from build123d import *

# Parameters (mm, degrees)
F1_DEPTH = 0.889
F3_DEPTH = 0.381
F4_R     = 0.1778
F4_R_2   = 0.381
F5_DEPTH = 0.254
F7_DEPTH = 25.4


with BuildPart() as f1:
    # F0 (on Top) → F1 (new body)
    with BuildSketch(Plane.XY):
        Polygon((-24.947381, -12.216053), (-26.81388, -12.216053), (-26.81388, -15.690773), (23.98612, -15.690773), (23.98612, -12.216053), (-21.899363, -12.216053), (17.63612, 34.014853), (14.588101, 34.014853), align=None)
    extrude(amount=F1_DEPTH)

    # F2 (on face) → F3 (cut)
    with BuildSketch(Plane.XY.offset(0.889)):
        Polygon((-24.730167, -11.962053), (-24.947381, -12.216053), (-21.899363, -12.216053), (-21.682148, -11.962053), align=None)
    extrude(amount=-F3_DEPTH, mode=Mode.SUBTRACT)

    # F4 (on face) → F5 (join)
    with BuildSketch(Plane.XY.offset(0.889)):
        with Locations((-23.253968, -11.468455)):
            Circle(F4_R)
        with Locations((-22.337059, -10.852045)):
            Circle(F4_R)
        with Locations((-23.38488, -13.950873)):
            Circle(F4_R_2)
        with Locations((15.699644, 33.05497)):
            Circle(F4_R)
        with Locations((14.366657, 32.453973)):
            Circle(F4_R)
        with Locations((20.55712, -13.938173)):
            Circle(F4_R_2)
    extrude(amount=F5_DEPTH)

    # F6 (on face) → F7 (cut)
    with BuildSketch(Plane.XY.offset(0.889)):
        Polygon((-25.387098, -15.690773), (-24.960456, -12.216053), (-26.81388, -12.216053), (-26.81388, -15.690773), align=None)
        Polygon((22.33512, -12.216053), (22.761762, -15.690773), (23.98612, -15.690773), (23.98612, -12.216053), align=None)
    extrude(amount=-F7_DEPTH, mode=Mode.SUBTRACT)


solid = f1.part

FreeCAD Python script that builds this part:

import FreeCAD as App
import Part
import Sketcher

V = App.Vector
Q = App.Units.Quantity


def add_polygon(sketch, points):
    """Adds a closed chain of lines whose ends are joined by coincident constraints."""
    first, n = sketch.GeometryCount, len(points)
    for a, b in zip(points, points[1:] + points[:1]):
        sketch.addGeometry(Part.LineSegment(App.Vector(*a, 0), App.Vector(*b, 0)), False)
    for i in range(n):
        sketch.addConstraint(Sketcher.Constraint("Coincident", first + i, 2, first + (i + 1) % n, 1))

doc = App.newDocument("Part")
body = doc.addObject("PartDesign::Body", "Body")

# Sketch on XY plane
sketch1 = body.newObject("Sketcher::SketchObject", "Sketch")
sketch1.AttachmentSupport = (doc.getObject("XY_Plane"), [""])
sketch1.MapMode = "FlatFace"
add_polygon(sketch1, [(-24.947381, -12.216053), (-26.81388, -12.216053), (-26.81388, -15.690773), (23.98612, -15.690773), (23.98612, -12.216053), (-21.899363, -12.216053), (17.63612, 34.014853), (14.588101, 34.014853)])  # lines 0-7
sketch1.addConstraint([
    Sketcher.Constraint("Horizontal", 0),
    Sketcher.Constraint("Vertical", 1),
    Sketcher.Constraint("Horizontal", 2),
    Sketcher.Constraint("Vertical", 3),
    Sketcher.Constraint("Horizontal", 4),
    Sketcher.Constraint("Horizontal", 6),
    Sketcher.Constraint("Parallel", 5, 7),
    Sketcher.Constraint("Horizontal", 0, 2, 3, 2),
    Sketcher.Constraint("DistanceX", 2, 1, 2, 2, Q("2 in")),
    Sketcher.Constraint("DistanceX", 5, 2, 3, 2, Q("0.25 in")),
    Sketcher.Constraint("DistanceY", 1, 2, 1, 1, Q("0.1368 in")),
    Sketcher.Constraint("DistanceX", 0, 2, 0, 1, Q("1.866499 mm")),
    Sketcher.Constraint("DistanceX", 6, 2, 6, 1, Q("3.048019 mm")),
    Sketcher.Constraint("DistanceX", -1, 1, 6, 2, Q("14.588101 mm")),
    Sketcher.Constraint("Distance", 5, Q("60.830511 mm")),
    Sketcher.Constraint("DistanceY", 0, 2, -1, 1, Q("12.216053 mm")),
])
pad1 = body.newObject("PartDesign::Pad", "Pad")
pad1.Profile = sketch1
pad1.Length = Q("0.035 in")

# Sketch on XY plane
sketch2 = body.newObject("Sketcher::SketchObject", "Sketch001")
sketch2.AttachmentSupport = (doc.getObject("XY_Plane"), [""])
sketch2.MapMode = "FlatFace"
sketch2.AttachmentOffset = App.Placement(V(0, 0, 0.035 * 25.4), App.Rotation())
add_polygon(sketch2, [(-24.730167, -11.962053), (-24.947381, -12.216053), (-21.899363, -12.216053), (-21.682148, -11.962053)])  # lines 0-3
sketch2.addConstraint([
    Sketcher.Constraint("Horizontal", 1),
    Sketcher.Constraint("Horizontal", 3),
    Sketcher.Constraint("Equal", 1, 3),
    Sketcher.Constraint("DistanceY", 1, 2, 2, 2, Q("0.01 in")),
    Sketcher.Constraint("DistanceX", 3, 2, 3, 1, Q("3.048019 mm")),
    Sketcher.Constraint("DistanceX", 0, 2, -1, 1, Q("24.947381 mm")),
    Sketcher.Constraint("DistanceX", 2, 2, -1, 1, Q("21.682148 mm")),
    Sketcher.Constraint("DistanceY", 0, 2, -1, 1, Q("12.216053 mm")),
])
pocket1 = body.newObject("PartDesign::Pocket", "Pocket")
pocket1.Profile = sketch2
pocket1.Length = Q("0.015 in")

# Sketch on XY plane
sketch3 = body.newObject("Sketcher::SketchObject", "Sketch002")
sketch3.AttachmentSupport = (doc.getObject("XY_Plane"), [""])
sketch3.MapMode = "FlatFace"
sketch3.AttachmentOffset = App.Placement(V(0, 0, 0.035 * 25.4), App.Rotation())
sketch3.addGeometry([
    Part.Circle(V(-23.253968, -11.468455, 0), V(0, 0, 1), 0.1778),  # 0
    Part.Circle(V(-22.337059, -10.852045, 0), V(0, 0, 1), 0.1778),  # 1
    Part.Circle(V(-23.38488, -13.950873, 0), V(0, 0, 1), 0.381),  # 2
    Part.Circle(V(15.699644, 33.05497, 0), V(0, 0, 1), 0.1778),  # 3
    Part.Circle(V(14.366657, 32.453973, 0), V(0, 0, 1), 0.1778),  # 4
    Part.Circle(V(20.55712, -13.938173, 0), V(0, 0, 1), 0.381),  # 5
], False)
sketch3.addConstraint([
    Sketcher.Constraint("Equal", 0, 1),
    Sketcher.Constraint("Equal", 1, 3),
    Sketcher.Constraint("Equal", 3, 4),
    Sketcher.Constraint("Equal", 2, 5),
    Sketcher.Constraint("Diameter", 2, Q("0.03 in")),
    Sketcher.Constraint("Diameter", 0, Q("0.014 in")),
    Sketcher.Constraint("DistanceX", 2, 3, 5, 3, Q("1.73 in")),
    Sketcher.Constraint("DistanceY", 2, 3, 5, 3, Q("0.0005 in")),
    Sketcher.Constraint("DistanceX", 0, 3, -1, 1, Q("23.253968 mm")),
    Sketcher.Constraint("DistanceX", 1, 3, -1, 1, Q("22.337059 mm")),
    Sketcher.Constraint("DistanceX", 2, 3, -1, 1, Q("23.38488 mm")),
    Sketcher.Constraint("DistanceY", -1, 1, 3, 3, Q("33.05497 mm")),
    Sketcher.Constraint("DistanceY", 0, 3, 1, 3, Q("0.61641 mm")),
    Sketcher.Constraint("DistanceY", 5, 3, 1, 3, Q("3.086128 mm")),
    Sketcher.Constraint("DistanceY", 0, 3, -1, 1, Q("11.468455 mm")),
    Sketcher.Constraint("DistanceX", -1, 1, 3, 3, Q("15.699644 mm")),
    Sketcher.Constraint("DistanceX", -1, 1, 4, 3, Q("14.366657 mm")),
    Sketcher.Constraint("DistanceY", -1, 1, 4, 3, Q("32.453973 mm")),
])
pad2 = body.newObject("PartDesign::Pad", "Pad001")
pad2.Profile = sketch3
pad2.Length = Q("0.01 in")

# Sketch on XY plane
sketch4 = body.newObject("Sketcher::SketchObject", "Sketch003")
sketch4.AttachmentSupport = (doc.getObject("XY_Plane"), [""])
sketch4.MapMode = "FlatFace"
sketch4.AttachmentOffset = App.Placement(V(0, 0, 0.035 * 25.4), App.Rotation())
add_polygon(sketch4, [(-25.387098, -15.690773), (-24.960456, -12.216053), (-26.81388, -12.216053), (-26.81388, -15.690773)])  # lines 0-3
add_polygon(sketch4, [(22.33512, -12.216053), (22.761762, -15.690773), (23.98612, -15.690773), (23.98612, -12.216053)])  # lines 4-7
sketch4.addConstraint([
    Sketcher.Constraint("Horizontal", 1),
    Sketcher.Constraint("Vertical", 2),
    Sketcher.Constraint("Horizontal", 3),
    Sketcher.Constraint("Horizontal", 5),
    Sketcher.Constraint("Vertical", 6),
    Sketcher.Constraint("Horizontal", 7),
    Sketcher.Constraint("Horizontal", 3, 2, 4, 2),
    Sketcher.Constraint("Horizontal", 1, 2, 6, 2),
    Sketcher.Constraint("Equal", 0, 4),
    Sketcher.Constraint("Angle", 0, Q("83 deg")),
    Sketcher.Constraint("DistanceX", 2, 2, 5, 2, Q("2 in")),
    Sketcher.Constraint("DistanceX", 7, 2, 7, 1, Q("0.065 in")),
    Sketcher.Constraint("DistanceY", 2, 2, 2, 1, Q("0.1368 in")),
    Sketcher.Constraint("DistanceX", 3, 1, 3, 2, Q("1.426782 mm")),
    Sketcher.Constraint("DistanceX", 3, 2, -1, 1, Q("25.387098 mm")),
    Sketcher.Constraint("DistanceY", 0, 2, -1, 1, Q("12.216053 mm")),
])
pocket2 = body.newObject("PartDesign::Pocket", "Pocket001")
pocket2.Profile = sketch4
pocket2.Length = Q("1 in")

doc.recompute()
